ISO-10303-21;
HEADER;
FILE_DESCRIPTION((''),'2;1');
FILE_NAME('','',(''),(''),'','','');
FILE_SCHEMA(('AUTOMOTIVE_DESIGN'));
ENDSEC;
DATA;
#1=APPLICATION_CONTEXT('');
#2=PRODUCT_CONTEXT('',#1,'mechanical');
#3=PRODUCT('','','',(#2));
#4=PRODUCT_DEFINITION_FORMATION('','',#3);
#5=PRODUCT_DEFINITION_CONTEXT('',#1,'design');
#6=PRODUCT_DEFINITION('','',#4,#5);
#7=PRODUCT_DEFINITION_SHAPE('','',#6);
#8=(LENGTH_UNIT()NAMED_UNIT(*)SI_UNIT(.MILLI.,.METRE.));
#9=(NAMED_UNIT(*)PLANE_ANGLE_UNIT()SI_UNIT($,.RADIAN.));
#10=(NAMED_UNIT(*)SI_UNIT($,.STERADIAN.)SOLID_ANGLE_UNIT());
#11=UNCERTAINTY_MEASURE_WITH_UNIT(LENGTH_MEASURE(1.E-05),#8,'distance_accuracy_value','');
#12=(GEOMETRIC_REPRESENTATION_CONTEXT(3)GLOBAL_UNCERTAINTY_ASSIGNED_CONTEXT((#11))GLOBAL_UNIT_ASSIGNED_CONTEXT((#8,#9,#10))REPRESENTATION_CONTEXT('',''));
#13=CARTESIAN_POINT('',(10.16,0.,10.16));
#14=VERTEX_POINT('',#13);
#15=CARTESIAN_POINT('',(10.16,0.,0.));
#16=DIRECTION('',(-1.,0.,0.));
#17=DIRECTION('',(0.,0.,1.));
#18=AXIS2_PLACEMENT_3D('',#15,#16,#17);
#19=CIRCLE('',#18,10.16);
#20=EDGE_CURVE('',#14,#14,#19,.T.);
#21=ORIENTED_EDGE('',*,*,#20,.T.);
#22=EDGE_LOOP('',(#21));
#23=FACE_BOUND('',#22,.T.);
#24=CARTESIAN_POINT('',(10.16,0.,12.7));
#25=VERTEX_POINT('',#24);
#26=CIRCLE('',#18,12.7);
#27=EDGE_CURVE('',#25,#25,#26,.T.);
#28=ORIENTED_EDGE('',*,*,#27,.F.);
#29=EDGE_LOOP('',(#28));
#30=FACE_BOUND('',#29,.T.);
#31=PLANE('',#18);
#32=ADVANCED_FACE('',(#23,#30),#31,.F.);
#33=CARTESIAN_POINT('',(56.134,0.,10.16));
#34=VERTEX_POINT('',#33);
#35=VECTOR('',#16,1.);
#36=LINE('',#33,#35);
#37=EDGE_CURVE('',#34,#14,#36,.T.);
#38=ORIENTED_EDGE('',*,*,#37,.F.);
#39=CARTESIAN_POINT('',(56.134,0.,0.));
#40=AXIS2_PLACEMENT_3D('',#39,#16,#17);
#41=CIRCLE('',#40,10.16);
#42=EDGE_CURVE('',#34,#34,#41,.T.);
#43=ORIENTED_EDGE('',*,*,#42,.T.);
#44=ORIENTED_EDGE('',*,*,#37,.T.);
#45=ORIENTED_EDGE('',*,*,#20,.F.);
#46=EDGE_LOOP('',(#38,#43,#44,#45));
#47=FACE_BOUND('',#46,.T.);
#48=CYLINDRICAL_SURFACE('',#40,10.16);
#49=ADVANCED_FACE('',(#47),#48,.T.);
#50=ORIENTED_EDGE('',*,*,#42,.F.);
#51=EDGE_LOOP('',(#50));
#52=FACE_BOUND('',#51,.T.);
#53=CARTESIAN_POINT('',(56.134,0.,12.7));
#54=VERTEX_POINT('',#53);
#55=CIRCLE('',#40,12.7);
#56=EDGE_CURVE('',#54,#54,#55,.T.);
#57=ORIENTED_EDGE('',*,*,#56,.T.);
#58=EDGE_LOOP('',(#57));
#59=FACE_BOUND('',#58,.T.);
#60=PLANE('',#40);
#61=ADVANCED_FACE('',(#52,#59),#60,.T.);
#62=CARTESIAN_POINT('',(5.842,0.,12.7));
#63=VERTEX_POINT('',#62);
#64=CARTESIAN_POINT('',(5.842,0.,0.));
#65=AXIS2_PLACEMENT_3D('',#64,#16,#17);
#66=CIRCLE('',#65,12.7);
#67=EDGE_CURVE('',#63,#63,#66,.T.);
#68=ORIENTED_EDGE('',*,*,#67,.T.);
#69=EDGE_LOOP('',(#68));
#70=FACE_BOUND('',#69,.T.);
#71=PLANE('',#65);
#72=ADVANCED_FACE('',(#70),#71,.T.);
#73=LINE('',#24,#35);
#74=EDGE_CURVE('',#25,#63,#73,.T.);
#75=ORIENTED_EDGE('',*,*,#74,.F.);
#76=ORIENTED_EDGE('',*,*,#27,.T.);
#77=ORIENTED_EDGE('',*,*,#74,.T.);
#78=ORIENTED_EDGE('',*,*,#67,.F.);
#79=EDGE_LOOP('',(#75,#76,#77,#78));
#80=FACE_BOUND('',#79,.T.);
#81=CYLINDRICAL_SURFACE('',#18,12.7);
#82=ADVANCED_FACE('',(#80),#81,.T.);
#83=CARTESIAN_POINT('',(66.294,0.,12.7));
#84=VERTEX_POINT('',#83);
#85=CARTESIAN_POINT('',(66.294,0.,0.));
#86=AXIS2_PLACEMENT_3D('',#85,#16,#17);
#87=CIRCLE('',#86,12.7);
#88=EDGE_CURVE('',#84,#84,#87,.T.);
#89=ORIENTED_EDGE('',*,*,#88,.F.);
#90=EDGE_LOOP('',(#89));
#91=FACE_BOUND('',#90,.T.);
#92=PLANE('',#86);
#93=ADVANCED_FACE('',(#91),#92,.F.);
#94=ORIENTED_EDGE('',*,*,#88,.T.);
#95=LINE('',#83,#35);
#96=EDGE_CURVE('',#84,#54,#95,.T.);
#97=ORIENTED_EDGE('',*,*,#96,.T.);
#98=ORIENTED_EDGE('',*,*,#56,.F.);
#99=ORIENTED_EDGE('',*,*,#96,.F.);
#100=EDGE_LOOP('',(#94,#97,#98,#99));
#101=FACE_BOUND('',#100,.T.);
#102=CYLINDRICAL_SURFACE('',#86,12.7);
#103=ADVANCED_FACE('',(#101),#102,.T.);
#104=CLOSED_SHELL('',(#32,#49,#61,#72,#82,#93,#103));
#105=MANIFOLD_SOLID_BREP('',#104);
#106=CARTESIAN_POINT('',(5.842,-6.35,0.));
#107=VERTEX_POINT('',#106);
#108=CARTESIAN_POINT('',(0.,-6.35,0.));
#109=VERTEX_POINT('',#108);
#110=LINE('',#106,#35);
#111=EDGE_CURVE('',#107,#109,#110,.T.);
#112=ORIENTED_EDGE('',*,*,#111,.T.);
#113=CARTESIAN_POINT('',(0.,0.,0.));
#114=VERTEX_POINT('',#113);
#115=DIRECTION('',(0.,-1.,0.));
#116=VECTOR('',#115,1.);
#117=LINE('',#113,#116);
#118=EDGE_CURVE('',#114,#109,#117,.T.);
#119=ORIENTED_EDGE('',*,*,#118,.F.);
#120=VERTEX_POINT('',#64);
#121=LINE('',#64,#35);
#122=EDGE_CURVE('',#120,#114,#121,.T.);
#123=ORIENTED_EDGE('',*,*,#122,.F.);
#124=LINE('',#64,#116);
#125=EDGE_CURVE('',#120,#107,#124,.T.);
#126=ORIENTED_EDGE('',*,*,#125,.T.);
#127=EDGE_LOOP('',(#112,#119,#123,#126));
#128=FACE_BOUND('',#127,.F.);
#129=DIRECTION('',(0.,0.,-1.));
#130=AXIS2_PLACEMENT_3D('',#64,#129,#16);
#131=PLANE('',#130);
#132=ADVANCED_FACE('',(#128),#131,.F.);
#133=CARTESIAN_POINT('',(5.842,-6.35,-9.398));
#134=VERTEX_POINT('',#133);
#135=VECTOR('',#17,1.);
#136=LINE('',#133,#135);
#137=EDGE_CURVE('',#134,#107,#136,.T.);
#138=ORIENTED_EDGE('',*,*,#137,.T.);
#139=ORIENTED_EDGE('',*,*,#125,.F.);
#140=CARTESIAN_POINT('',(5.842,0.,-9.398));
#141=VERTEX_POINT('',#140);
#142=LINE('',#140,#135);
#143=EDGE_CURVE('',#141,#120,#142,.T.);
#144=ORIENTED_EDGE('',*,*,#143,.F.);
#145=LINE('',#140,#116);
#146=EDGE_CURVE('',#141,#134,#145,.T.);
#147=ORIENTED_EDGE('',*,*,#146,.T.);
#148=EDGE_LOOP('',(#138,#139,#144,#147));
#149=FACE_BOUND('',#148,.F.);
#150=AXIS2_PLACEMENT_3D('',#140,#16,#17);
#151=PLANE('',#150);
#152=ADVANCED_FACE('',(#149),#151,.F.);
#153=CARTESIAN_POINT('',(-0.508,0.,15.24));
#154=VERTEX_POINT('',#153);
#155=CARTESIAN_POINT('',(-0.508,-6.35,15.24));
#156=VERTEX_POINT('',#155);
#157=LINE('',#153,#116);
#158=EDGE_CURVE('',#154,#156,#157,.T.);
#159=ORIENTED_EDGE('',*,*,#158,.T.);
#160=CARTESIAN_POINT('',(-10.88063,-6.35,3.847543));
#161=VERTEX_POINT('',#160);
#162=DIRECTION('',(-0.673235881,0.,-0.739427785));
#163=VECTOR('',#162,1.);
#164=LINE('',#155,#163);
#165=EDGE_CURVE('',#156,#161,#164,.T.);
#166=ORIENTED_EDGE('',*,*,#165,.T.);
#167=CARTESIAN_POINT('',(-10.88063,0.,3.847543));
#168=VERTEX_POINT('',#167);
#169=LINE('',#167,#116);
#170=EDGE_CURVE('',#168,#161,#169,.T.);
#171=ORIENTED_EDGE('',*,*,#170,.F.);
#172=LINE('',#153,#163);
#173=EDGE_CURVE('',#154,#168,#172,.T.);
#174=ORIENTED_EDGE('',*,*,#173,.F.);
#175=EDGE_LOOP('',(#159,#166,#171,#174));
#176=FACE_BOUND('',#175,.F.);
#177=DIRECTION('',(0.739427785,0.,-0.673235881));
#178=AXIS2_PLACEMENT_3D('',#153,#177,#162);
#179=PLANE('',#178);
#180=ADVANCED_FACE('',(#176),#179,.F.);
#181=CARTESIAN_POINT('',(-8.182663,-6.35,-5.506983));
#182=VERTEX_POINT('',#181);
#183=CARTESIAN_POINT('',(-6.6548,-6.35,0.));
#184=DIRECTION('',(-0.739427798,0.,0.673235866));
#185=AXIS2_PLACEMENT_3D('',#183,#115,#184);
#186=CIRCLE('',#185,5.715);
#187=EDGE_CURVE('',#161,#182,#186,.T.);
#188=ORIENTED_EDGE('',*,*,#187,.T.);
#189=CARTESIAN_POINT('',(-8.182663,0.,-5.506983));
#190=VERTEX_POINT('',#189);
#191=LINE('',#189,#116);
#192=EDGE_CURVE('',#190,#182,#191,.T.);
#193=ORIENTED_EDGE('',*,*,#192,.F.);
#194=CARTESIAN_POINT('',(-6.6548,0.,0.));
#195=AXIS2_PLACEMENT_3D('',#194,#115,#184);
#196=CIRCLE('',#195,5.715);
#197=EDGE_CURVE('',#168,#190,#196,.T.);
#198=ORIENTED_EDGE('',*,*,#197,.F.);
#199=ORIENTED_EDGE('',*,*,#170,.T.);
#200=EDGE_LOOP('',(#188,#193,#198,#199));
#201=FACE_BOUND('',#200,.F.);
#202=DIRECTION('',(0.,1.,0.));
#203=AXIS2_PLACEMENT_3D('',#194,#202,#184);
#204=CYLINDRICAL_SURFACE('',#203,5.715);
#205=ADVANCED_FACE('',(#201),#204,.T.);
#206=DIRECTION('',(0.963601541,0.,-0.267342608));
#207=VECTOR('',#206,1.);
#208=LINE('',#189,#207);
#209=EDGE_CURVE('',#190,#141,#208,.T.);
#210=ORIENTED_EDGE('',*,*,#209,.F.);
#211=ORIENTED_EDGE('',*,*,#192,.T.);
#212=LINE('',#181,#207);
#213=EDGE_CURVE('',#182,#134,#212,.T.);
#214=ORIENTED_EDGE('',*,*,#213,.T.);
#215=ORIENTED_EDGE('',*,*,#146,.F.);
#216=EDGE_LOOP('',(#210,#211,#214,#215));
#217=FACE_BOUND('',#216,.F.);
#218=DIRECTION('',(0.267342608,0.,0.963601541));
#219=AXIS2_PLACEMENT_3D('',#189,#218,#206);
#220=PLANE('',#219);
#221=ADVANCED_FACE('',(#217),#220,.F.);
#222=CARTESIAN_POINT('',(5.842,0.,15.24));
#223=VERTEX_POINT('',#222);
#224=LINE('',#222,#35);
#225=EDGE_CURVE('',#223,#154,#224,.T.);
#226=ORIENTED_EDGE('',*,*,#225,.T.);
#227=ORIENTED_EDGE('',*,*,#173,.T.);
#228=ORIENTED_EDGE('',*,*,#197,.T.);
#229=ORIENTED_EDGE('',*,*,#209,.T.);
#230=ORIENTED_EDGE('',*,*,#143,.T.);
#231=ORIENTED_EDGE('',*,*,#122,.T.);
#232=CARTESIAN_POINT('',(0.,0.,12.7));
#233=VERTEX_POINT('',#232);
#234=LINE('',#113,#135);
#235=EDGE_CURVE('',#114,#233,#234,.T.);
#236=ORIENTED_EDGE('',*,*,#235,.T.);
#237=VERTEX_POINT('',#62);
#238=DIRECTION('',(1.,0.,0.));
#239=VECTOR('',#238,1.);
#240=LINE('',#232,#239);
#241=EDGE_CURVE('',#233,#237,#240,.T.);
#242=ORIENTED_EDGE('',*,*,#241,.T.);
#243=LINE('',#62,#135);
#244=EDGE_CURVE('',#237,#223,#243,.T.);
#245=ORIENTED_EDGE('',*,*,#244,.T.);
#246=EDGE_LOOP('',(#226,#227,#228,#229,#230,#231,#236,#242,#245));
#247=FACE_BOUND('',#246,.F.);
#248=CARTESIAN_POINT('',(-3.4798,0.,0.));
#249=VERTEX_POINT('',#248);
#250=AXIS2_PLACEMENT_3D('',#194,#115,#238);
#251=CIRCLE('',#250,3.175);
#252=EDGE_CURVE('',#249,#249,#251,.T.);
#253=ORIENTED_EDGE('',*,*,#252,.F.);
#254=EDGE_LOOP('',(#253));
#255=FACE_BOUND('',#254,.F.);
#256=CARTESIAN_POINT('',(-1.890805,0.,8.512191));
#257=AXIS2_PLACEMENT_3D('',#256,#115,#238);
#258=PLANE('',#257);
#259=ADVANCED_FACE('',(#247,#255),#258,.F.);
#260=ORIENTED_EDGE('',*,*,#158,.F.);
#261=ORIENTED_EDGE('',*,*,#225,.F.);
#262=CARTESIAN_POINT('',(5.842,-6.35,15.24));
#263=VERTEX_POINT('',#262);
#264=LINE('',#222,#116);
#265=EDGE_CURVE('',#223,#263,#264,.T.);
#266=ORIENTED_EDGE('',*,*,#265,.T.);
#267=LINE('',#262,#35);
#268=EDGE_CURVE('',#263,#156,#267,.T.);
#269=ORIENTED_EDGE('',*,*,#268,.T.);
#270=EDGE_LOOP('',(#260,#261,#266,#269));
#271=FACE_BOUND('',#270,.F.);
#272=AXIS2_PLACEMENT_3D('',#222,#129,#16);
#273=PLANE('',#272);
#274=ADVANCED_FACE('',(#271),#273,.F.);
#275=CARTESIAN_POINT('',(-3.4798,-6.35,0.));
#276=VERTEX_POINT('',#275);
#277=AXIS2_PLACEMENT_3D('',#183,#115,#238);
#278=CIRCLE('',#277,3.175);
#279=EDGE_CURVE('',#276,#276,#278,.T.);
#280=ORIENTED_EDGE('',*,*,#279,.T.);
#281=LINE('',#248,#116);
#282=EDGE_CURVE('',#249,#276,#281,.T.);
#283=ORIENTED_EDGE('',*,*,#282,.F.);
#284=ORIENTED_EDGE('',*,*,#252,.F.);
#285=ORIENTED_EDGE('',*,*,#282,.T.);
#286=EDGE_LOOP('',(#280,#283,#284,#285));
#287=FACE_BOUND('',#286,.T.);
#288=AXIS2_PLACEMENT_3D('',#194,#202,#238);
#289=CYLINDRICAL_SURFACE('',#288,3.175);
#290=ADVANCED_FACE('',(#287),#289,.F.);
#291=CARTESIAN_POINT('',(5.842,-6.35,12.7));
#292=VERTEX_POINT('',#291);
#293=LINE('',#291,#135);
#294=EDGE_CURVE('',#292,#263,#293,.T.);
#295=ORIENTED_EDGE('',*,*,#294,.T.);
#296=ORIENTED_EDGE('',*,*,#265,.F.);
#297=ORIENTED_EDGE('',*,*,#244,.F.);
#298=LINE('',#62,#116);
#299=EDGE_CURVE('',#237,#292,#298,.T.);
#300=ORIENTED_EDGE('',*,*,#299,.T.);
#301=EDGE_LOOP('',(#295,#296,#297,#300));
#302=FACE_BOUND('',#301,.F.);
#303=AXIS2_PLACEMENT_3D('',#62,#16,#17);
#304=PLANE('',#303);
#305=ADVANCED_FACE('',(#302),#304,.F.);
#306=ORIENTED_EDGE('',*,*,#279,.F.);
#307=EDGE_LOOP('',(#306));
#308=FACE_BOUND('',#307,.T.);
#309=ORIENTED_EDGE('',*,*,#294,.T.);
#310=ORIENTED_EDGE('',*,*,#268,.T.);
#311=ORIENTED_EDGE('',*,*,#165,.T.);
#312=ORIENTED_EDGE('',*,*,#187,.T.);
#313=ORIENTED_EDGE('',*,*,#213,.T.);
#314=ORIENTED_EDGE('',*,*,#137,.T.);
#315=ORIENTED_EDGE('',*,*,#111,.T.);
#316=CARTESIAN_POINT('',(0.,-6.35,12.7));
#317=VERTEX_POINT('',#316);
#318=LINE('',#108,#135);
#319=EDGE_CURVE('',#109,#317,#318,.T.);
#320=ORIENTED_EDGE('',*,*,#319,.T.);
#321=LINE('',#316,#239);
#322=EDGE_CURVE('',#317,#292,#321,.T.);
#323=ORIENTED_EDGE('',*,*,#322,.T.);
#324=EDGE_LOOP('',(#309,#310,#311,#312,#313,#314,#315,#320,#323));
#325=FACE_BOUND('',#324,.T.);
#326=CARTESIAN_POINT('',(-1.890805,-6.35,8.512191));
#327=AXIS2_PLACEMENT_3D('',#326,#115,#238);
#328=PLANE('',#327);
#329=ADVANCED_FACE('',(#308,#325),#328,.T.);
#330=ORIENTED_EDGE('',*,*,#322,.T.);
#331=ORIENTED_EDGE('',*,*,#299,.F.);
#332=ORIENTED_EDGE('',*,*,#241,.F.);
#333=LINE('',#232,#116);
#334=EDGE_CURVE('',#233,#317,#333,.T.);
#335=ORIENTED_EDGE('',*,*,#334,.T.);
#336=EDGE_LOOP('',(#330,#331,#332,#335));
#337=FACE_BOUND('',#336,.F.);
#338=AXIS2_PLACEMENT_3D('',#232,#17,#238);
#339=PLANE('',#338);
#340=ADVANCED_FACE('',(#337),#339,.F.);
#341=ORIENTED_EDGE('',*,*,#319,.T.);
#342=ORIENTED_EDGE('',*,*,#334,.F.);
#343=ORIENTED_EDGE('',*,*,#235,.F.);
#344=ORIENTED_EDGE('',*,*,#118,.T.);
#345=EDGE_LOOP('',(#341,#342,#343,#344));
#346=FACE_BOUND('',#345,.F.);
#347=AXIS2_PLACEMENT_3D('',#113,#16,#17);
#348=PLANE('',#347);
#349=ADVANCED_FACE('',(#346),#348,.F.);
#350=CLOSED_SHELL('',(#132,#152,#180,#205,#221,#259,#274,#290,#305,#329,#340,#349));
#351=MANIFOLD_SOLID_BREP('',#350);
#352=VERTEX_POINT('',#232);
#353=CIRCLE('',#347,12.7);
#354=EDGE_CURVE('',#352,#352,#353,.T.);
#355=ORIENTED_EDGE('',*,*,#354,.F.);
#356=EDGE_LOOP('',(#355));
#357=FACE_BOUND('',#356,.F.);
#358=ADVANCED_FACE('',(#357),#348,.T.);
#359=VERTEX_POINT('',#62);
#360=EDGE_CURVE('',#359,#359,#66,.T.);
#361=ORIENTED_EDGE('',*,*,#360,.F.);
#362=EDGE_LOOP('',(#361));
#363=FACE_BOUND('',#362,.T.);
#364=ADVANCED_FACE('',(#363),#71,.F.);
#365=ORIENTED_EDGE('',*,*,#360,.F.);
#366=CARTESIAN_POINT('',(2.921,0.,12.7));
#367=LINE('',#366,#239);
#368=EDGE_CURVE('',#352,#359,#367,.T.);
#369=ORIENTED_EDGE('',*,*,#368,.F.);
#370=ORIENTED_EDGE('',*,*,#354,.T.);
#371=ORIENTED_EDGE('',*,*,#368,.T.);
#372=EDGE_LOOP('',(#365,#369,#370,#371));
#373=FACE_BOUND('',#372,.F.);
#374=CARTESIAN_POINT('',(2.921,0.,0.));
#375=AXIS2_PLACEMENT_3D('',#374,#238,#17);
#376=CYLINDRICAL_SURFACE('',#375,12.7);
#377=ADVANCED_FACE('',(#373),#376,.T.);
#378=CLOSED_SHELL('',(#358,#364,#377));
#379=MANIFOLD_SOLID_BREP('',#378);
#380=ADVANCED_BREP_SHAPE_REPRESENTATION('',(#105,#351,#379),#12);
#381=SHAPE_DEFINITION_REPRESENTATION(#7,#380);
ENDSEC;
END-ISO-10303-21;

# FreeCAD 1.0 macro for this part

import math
import FreeCAD as App
import Part
import Sketcher

V = App.Vector
Q = App.Units.Quantity


def add_polygon(sketch, points):
    """Adds a closed chain of lines whose ends are joined by coincident constraints."""
    first, n = sketch.GeometryCount, len(points)
    for a, b in zip(points, points[1:] + points[:1]):
        sketch.addGeometry(Part.LineSegment(App.Vector(*a, 0), App.Vector(*b, 0)), False)
    for i in range(n):
        sketch.addConstraint(Sketcher.Constraint("Coincident", first + i, 2, first + (i + 1) % n, 1))

doc = App.newDocument("Part")
body = doc.addObject("PartDesign::Body", "Body")

# Sketch on XZ plane
sketch1 = doc.addObject("Sketcher::SketchObject", "Sketch")
body.addObject(sketch1)
sketch1.AttachmentSupport = (doc.XZ_Plane, [""])
sketch1.MapMode = "FlatFace"
add_polygon(sketch1, [(5.842, 12.7), (5.842, 0), (66.294, 0), (66.294, 12.7), (56.134, 12.7), (56.134, 10.16), (10.16, 10.16), (10.16, 12.7)])  # lines 0-7
sketch1.addConstraint([
    Sketcher.Constraint("Vertical", 0),
    Sketcher.Constraint("Horizontal", 1),
    Sketcher.Constraint("Vertical", 2),
    Sketcher.Constraint("Horizontal", 3),
    Sketcher.Constraint("Vertical", 4),
    Sketcher.Constraint("Horizontal", 5),
    Sketcher.Constraint("Vertical", 6),
    Sketcher.Constraint("Horizontal", 7),
    Sketcher.Constraint("PointOnObject", 0, 2, -1),
    Sketcher.Constraint("Horizontal", 3, 2, 6, 2),
    Sketcher.Constraint("DistanceX", 3, 2, 3, 1, Q("0.4 in")),
    Sketcher.Constraint("DistanceY", 0, 2, 0, 1, Q("0.5 in")),
    Sketcher.Constraint("DistanceY", 4, 2, 4, 1, Q("0.1 in")),
    Sketcher.Constraint("DistanceX", 1, 1, 1, 2, Q("2.38 in")),
    Sketcher.Constraint("DistanceX", 5, 2, 5, 1, Q("1.81 in")),
    Sketcher.Constraint("DistanceX", -1, 1, 5, 2, Q("0.4 in")),
])
revolution = doc.addObject("PartDesign::Revolution", "Revolution")
body.addObject(revolution)
revolution.Profile = sketch1
revolution.ReferenceAxis = (sketch1, ["H_Axis"])
revolution.Angle = 360
body2 = doc.addObject("PartDesign::Body", "Body001")

# Sketch on XZ plane
sketch2 = doc.addObject("Sketcher::SketchObject", "Sketch001")
body2.addObject(sketch2)
sketch2.AttachmentSupport = (doc.getObject("XZ_Plane001"), [""])
sketch2.MapMode = "FlatFace"
sketch2.addGeometry([
    Part.LineSegment(V(0, 0, 0), V(0, 12.7, 0)),  # 0
    Part.LineSegment(V(0, 12.7, 0), V(5.842, 12.7, 0)),  # 1
    Part.LineSegment(V(5.842, 12.7, 0), V(5.842, 15.24, 0)),  # 2
    Part.LineSegment(V(5.842, 15.24, 0), V(-0.508, 15.24, 0)),  # 3
    Part.LineSegment(V(-0.508, 15.24, 0), V(-10.88063, 3.847543, 0)),  # 4
    Part.ArcOfCircle(Part.Circle(V(-6.6548, 0, 0), V(0, 0, 1), 5.715), math.radians(137.682696), math.radians(254.493803)),  # 5
    Part.LineSegment(V(-8.182663, -5.506983, 0), V(5.842, -9.398, 0)),  # 6
    Part.LineSegment(V(5.842, -9.398, 0), V(5.842, 0, 0)),  # 7
    Part.LineSegment(V(5.842, 0, 0), V(0, 0, 0)),  # 8
    Part.Circle(V(-6.6548, 0, 0), V(0, 0, 1), 3.175),  # 9
], False)
sketch2.addConstraint([
    Sketcher.Constraint("Coincident", 0, 2, 1, 1),
    Sketcher.Constraint("Coincident", 1, 2, 2, 1),
    Sketcher.Constraint("Coincident", 2, 2, 3, 1),
    Sketcher.Constraint("Coincident", 3, 2, 4, 1),
    Sketcher.Constraint("Tangent", 4, 2, 5, 1),
    Sketcher.Constraint("Tangent", 5, 2, 6, 1),
    Sketcher.Constraint("Coincident", 6, 2, 7, 1),
    Sketcher.Constraint("Coincident", 7, 2, 8, 1),
    Sketcher.Constraint("Coincident", 8, 2, 0, 1),
    Sketcher.Constraint("Vertical", 0),
    Sketcher.Constraint("Horizontal", 1),
    Sketcher.Constraint("Vertical", 2),
    Sketcher.Constraint("Horizontal", 3),
    Sketcher.Constraint("Vertical", 7),
    Sketcher.Constraint("Horizontal", 8),
    Sketcher.Constraint("Coincident", 8, 2, -1, 1),
    Sketcher.Constraint("Coincident", 9, 3, 5, 3),
    Sketcher.Constraint("PointOnObject", 5, 3, -1),
    Sketcher.Constraint("Vertical", 2, 2, 6, 2),
    Sketcher.Constraint("Diameter", 9, Q("0.25 in")),
    Sketcher.Constraint("DistanceY", 0, 1, 0, 2, Q("0.5 in")),
    Sketcher.Constraint("DistanceY", 2, 1, 2, 2, Q("0.1 in")),
    Sketcher.Constraint("Radius", 5, Q("0.225 in")),
    Sketcher.Constraint("DistanceX", 1, 1, 1, 2, Q("0.23 in")),
    Sketcher.Constraint("DistanceX", 3, 2, 3, 1, Q("0.25 in")),
    Sketcher.Constraint("DistanceY", 7, 1, 7, 2, Q("0.37 in")),
    Sketcher.Constraint("DistanceX", 5, 3, -1, 1, Q("0.262 in")),
])
pad1 = doc.addObject("PartDesign::Pad", "Pad")
body2.addObject(pad1)
pad1.Profile = sketch2
pad1.Length = Q("0.25 in")
body3 = doc.addObject("PartDesign::Body", "Body002")

# Sketch on XZ plane
sketch3 = doc.addObject("Sketcher::SketchObject", "Sketch002")
body3.addObject(sketch3)
sketch3.AttachmentSupport = (doc.getObject("XZ_Plane002"), [""])
sketch3.MapMode = "FlatFace"
add_polygon(sketch3, [(0, 12.7), (0, 0), (5.842, 0), (5.842, 12.7)])  # lines 0-3
sketch3.addConstraint([
    Sketcher.Constraint("Vertical", 0),
    Sketcher.Constraint("Horizontal", 1),
    Sketcher.Constraint("Vertical", 2),
    Sketcher.Constraint("Horizontal", 3),
    Sketcher.Constraint("Coincident", 0, 2, -1, 1),
    Sketcher.Constraint("DistanceY", 0, 2, 0, 1, Q("0.5 in")),
    Sketcher.Constraint("DistanceX", 1, 1, 1, 2, Q("0.23 in")),
])
revolution2 = doc.addObject("PartDesign::Revolution", "Revolution001")
body3.addObject(revolution2)
revolution2.Profile = sketch3
revolution2.ReferenceAxis = (sketch3, ["H_Axis"])
revolution2.Angle = 360

doc.recompute()
